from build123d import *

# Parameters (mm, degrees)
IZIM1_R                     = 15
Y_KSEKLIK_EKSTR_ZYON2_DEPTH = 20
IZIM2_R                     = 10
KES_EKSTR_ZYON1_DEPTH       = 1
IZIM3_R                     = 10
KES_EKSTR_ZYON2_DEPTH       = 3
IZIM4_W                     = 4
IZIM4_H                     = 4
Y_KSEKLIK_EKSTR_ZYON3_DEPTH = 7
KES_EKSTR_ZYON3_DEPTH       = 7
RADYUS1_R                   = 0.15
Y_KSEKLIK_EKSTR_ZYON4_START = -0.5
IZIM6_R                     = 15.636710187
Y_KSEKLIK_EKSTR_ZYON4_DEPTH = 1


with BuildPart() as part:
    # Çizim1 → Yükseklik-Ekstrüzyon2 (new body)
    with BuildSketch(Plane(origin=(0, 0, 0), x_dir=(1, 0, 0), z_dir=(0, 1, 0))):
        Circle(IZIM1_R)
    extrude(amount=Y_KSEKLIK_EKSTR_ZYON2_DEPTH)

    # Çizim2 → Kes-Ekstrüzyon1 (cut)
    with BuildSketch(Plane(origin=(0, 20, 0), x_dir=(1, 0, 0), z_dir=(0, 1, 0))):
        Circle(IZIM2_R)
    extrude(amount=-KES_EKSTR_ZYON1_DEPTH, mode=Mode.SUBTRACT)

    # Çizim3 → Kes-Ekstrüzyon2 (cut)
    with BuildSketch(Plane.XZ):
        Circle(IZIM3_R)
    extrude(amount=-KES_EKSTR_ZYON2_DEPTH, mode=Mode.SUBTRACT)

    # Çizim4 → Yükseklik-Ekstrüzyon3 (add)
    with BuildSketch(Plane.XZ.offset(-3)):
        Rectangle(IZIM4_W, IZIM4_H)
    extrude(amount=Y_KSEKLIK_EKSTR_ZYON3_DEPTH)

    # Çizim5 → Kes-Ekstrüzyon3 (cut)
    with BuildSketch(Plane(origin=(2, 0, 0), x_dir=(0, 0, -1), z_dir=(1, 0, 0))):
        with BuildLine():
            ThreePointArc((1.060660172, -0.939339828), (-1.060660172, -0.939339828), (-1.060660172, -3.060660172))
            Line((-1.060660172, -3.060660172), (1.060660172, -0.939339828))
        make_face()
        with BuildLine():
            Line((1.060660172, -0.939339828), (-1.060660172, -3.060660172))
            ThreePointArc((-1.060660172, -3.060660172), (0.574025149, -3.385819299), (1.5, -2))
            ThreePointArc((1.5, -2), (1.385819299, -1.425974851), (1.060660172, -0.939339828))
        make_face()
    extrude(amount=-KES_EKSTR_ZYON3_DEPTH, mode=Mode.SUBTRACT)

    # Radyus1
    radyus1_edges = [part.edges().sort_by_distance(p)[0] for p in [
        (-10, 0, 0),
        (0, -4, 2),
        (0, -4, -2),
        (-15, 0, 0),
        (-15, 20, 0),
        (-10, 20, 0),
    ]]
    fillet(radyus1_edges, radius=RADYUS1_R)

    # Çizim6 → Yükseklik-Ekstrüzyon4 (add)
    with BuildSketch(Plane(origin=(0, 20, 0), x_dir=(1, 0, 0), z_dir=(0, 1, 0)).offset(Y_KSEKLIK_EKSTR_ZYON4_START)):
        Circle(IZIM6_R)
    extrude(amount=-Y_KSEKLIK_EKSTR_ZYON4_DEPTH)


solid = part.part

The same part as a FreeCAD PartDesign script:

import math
import FreeCAD as App
import Part
import Sketcher
from FreeCAD import Vector


def edges_at(feature, points):
    """Names of the edges that pass closest to the given points."""
    edges = feature.Shape.Edges
    near = lambda p: min(range(len(edges)), key=lambda i: edges[i].distToShape(Part.Vertex(*p))[0])
    return sorted({f"Edge{near(p) + 1}" for p in points})


def add_polygon(sketch, points):
    """Adds a closed chain of lines whose ends are joined by coincident constraints."""
    first, n = sketch.GeometryCount, len(points)
    for a, b in zip(points, points[1:] + points[:1]):
        sketch.addGeometry(Part.LineSegment(App.Vector(*a, 0), App.Vector(*b, 0)), False)
    for i in range(n):
        sketch.addConstraint(Sketcher.Constraint("Coincident", first + i, 2, first + (i + 1) % n, 1))

doc = App.newDocument("Part")
body = doc.addObject("PartDesign::Body", "Body")

# Sketch on XZ plane
sketch1 = body.newObject("Sketcher::SketchObject", "Sketch")
sketch1.AttachmentSupport = (doc.getObject("XZ_Plane"), [""])
sketch1.MapMode = "FlatFace"
sketch1.addGeometry(Part.Circle(Vector(0, 0, 0), Vector(0, 0, 1), 15), False)
sketch1.addConstraint([
    Sketcher.Constraint("Coincident", 0, 3, -1, 1),
    Sketcher.Constraint("Diameter", 0, 30.0),
])
pad1 = body.newObject("PartDesign::Pad", "Pad")
pad1.Profile = sketch1
pad1.Length = 20
pad1.Reversed = True

# Sketch on XZ plane
sketch2 = body.newObject("Sketcher::SketchObject", "Sketch001")
sketch2.AttachmentSupport = (doc.getObject("XZ_Plane"), [""])
sketch2.MapMode = "FlatFace"
sketch2.AttachmentOffset = App.Placement(Vector(0, 0, -20), App.Rotation())
sketch2.addGeometry(Part.Circle(Vector(0, 0, 0), Vector(0, 0, 1), 10), False)
sketch2.addConstraint([
    Sketcher.Constraint("Coincident", 0, 3, -1, 1),
    Sketcher.Constraint("Diameter", 0, 20.0),
])
pocket1 = body.newObject("PartDesign::Pocket", "Pocket")
pocket1.Profile = sketch2
pocket1.Length = 1
pocket1.Reversed = True

# Sketch on XZ plane
sketch3 = body.newObject("Sketcher::SketchObject", "Sketch002")
sketch3.AttachmentSupport = (doc.getObject("XZ_Plane"), [""])
sketch3.MapMode = "FlatFace"
sketch3.addGeometry(Part.Circle(Vector(0, 0, 0), Vector(0, 0, 1), 10), False)
sketch3.addConstraint([
    Sketcher.Constraint("Coincident", 0, 3, -1, 1),
    Sketcher.Constraint("Diameter", 0, 20.0),
])
pocket2 = body.newObject("PartDesign::Pocket", "Pocket001")
pocket2.Profile = sketch3
pocket2.Length = 3

# Sketch on XZ plane
sketch4 = body.newObject("Sketcher::SketchObject", "Sketch003")
sketch4.AttachmentSupport = (doc.getObject("XZ_Plane"), [""])
sketch4.MapMode = "FlatFace"
sketch4.AttachmentOffset = App.Placement(Vector(0, 0, -3), App.Rotation())
add_polygon(sketch4, [(-2, 2), (-2, -2), (2, -2), (2, 2)])  # lines 0-3
sketch4.addConstraint([
    Sketcher.Constraint("Vertical", 0),
    Sketcher.Constraint("Horizontal", 1),
    Sketcher.Constraint("Vertical", 2),
    Sketcher.Constraint("Horizontal", 3),
    Sketcher.Constraint("Symmetric", 0, 2, 2, 2, -1, 1),
    Sketcher.Constraint("Equal", 3, 0),
    Sketcher.Constraint("DistanceX", 1, 1, 1, 2, 4.0),
])
pad2 = body.newObject("PartDesign::Pad", "Pad001")
pad2.Profile = sketch4
pad2.Length = 7

# Sketch on YZ plane
sketch5 = body.newObject("Sketcher::SketchObject", "Sketch004")
sketch5.AttachmentSupport = (doc.getObject("YZ_Plane"), [""])
sketch5.MapMode = "FlatFace"
sketch5.AttachmentOffset = App.Placement(Vector(0, 0, 2), App.Rotation())
sketch5.addGeometry([
    Part.ArcOfCircle(Part.Circle(Vector(-2, 0, 0), Vector(0, 0, 1), 1.5), math.radians(-45), math.radians(135)),
    Part.ArcOfCircle(Part.Circle(Vector(-2, 0, 0), Vector(0, 0, 1), 1.5), math.radians(135), math.radians(270)),
    Part.ArcOfCircle(Part.Circle(Vector(-2, 0, 0), Vector(0, 0, 1), 1.5), math.radians(-90), math.radians(-45)),
], False)
sketch5.addConstraint([
    Sketcher.Constraint("Tangent", 0, 2, 1, 1),
    Sketcher.Constraint("Tangent", 1, 2, 2, 1),
    Sketcher.Constraint("Tangent", 2, 2, 0, 1),
    Sketcher.Constraint("PointOnObject", 0, 3, -1),
    Sketcher.Constraint("Vertical", 2, 3, 1, 2),
    Sketcher.Constraint("Radius", 0, 1.5),
    Sketcher.Constraint("DistanceX", 0, 3, -1, 1, 2.0),
    Sketcher.Constraint("DistanceX", 0, 2, -1, 1, 3.06066),
    Sketcher.Constraint("DistanceX", 2, 2, -1, 1, 0.93934),
])
pocket3 = body.newObject("PartDesign::Pocket", "Pocket002")
pocket3.Profile = sketch5
pocket3.Length = 7
doc.recompute()

fillet = body.newObject("PartDesign::Fillet", "Fillet")
fillet.Base = (pocket3, edges_at(pocket3, [
    (-10, 0, 0),
    (0, -4, 2),
    (0, -4, -2),
    (-15, 0, 0),
    (-15, 20, 0),
    (-10, 20, 0),
]))
fillet.Radius = 0.15

# Sketch on XZ plane
sketch6 = body.newObject("Sketcher::SketchObject", "Sketch005")
sketch6.AttachmentSupport = (doc.getObject("XZ_Plane"), [""])
sketch6.MapMode = "FlatFace"
sketch6.AttachmentOffset = App.Placement(Vector(0, 0, -19.5), App.Rotation())
sketch6.addGeometry(Part.Circle(Vector(0, 0, 0), Vector(0, 0, 1), 16), False)
sketch6.addConstraint([
    Sketcher.Constraint("Coincident", 0, 3, -1, 1),
    Sketcher.Constraint("Diameter", 0, 31.27342),
])
pad3 = body.newObject("PartDesign::Pad", "Pad002")
pad3.Profile = sketch6
pad3.Length = 1

doc.recompute()
